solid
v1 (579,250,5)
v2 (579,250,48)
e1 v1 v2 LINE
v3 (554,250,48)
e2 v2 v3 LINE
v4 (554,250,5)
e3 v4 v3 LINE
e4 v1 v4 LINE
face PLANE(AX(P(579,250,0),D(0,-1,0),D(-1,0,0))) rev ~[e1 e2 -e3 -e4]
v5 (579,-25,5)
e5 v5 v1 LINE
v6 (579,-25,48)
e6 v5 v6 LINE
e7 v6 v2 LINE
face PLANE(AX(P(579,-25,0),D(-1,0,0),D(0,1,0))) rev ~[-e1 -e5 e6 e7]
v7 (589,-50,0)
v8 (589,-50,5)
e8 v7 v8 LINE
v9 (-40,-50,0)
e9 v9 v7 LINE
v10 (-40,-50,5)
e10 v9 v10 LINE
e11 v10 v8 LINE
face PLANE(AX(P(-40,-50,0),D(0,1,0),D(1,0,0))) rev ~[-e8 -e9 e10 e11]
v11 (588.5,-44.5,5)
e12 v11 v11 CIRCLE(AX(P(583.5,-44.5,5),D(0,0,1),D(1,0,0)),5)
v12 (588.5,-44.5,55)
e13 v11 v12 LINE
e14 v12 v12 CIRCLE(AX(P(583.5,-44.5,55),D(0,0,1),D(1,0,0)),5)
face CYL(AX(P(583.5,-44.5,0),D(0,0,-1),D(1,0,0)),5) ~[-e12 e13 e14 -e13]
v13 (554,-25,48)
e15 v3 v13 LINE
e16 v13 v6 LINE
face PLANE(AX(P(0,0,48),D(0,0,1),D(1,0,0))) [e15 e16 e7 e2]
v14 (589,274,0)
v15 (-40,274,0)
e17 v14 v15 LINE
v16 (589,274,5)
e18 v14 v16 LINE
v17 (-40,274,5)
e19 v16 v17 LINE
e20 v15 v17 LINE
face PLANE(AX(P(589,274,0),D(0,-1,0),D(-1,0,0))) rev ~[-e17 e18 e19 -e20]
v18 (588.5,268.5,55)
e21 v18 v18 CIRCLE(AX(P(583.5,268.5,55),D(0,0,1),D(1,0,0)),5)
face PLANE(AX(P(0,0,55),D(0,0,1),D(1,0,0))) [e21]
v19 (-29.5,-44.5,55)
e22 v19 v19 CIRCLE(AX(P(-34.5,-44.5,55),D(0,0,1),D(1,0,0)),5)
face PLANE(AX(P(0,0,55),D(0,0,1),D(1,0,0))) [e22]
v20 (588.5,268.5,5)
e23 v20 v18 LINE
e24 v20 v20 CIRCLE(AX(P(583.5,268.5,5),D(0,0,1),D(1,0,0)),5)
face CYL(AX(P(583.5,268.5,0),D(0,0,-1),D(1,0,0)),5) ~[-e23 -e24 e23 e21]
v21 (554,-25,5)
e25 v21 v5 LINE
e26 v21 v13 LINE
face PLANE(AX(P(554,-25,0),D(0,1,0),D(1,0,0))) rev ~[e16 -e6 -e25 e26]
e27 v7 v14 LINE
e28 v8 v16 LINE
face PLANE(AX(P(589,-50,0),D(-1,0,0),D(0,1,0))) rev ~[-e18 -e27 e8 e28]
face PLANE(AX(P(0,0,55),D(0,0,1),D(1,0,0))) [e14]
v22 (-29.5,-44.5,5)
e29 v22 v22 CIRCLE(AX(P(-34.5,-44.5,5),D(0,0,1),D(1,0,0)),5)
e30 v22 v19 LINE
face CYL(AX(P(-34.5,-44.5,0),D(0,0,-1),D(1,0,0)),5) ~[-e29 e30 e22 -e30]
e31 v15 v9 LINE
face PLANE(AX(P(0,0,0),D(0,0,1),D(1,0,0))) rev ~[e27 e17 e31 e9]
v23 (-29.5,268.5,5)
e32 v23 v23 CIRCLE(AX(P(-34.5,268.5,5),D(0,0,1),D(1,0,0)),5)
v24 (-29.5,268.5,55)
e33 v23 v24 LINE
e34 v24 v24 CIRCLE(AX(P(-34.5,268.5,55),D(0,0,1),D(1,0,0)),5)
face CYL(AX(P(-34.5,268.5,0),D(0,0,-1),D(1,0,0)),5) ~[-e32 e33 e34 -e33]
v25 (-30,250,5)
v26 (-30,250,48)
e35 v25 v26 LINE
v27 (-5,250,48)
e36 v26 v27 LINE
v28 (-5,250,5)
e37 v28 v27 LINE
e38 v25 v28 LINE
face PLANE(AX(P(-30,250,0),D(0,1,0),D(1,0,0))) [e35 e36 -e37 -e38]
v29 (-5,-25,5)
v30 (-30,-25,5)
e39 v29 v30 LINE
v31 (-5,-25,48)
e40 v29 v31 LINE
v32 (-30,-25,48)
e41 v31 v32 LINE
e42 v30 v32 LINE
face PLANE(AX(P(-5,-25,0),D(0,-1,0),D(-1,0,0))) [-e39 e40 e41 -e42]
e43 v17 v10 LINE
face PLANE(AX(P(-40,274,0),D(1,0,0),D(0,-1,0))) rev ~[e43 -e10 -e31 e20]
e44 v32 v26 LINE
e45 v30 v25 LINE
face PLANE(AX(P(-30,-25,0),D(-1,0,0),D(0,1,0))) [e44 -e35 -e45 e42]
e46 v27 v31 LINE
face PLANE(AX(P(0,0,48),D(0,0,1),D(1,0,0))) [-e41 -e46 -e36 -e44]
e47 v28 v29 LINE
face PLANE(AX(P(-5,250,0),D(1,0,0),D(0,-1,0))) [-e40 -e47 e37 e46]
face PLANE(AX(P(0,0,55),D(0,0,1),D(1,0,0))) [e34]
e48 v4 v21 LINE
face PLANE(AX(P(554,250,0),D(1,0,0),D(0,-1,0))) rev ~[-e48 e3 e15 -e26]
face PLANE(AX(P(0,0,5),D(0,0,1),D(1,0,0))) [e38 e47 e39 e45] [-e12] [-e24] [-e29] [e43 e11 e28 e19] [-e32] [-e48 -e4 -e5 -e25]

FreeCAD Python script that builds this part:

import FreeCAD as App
import Part
import Sketcher
from FreeCAD import Vector

doc = App.newDocument("Part")
body = doc.addObject("PartDesign::Body", "Body")

sketch1 = body.newObject("Sketcher::SketchObject", "Sketch")
sketch1.AttachmentSupport = (doc.getObject("XY_Plane"), [""])
sketch1.MapMode = "FlatFace"
sketch1.addGeometry([
    Part.LineSegment(Vector(-40, 274, 0), Vector(-40, -50, 0)),
    Part.LineSegment(Vector(-40, -50, 0), Vector(589, -50, 0)),
    Part.LineSegment(Vector(589, -50, 0), Vector(589, 274, 0)),
    Part.LineSegment(Vector(589, 274, 0), Vector(-40, 274, 0)),
    Part.Circle(Vector(-34, -44, 0), Vector(0, 0, 1), 5),
    Part.Circle(Vector(584, -44, 0), Vector(0, 0, 1), 5),
    Part.LineSegment(Vector(-30, -25, 0), Vector(-30, 250, 0)),
    Part.LineSegment(Vector(-30, 250, 0), Vector(-5, 250, 0)),
    Part.LineSegment(Vector(-5, 250, 0), Vector(-5, -25, 0)),
    Part.LineSegment(Vector(-5, -25, 0), Vector(-30, -25, 0)),
    Part.Circle(Vector(-34, 268, 0), Vector(0, 0, 1), 5),
    Part.LineSegment(Vector(554, 250, 0), Vector(579, 250, 0)),
    Part.LineSegment(Vector(579, 250, 0), Vector(579, -25, 0)),
    Part.LineSegment(Vector(579, -25, 0), Vector(554, -25, 0)),
    Part.LineSegment(Vector(554, -25, 0), Vector(554, 250, 0)),
    Part.Circle(Vector(584, 268, 0), Vector(0, 0, 1), 5),
], False)
sketch1.addConstraint([
    Sketcher.Constraint("Coincident", 0, 2, 1, 1),
    Sketcher.Constraint("Coincident", 1, 2, 2, 1),
    Sketcher.Constraint("Coincident", 2, 2, 3, 1),
    Sketcher.Constraint("Coincident", 3, 2, 0, 1),
    Sketcher.Constraint("Coincident", 6, 2, 7, 1),
    Sketcher.Constraint("Coincident", 7, 2, 8, 1),
    Sketcher.Constraint("Coincident", 8, 2, 9, 1),
    Sketcher.Constraint("Coincident", 9, 2, 6, 1),
    Sketcher.Constraint("Coincident", 11, 2, 12, 1),
    Sketcher.Constraint("Coincident", 12, 2, 13, 1),
    Sketcher.Constraint("Coincident", 13, 2, 14, 1),
    Sketcher.Constraint("Coincident", 14, 2, 11, 1),
    Sketcher.Constraint("Vertical", 0),
    Sketcher.Constraint("Horizontal", 1),
    Sketcher.Constraint("Vertical", 2),
    Sketcher.Constraint("Horizontal", 3),
    Sketcher.Constraint("Vertical", 6),
    Sketcher.Constraint("Horizontal", 7),
    Sketcher.Constraint("Vertical", 8),
    Sketcher.Constraint("Horizontal", 9),
    Sketcher.Constraint("Horizontal", 11),
    Sketcher.Constraint("Vertical", 12),
    Sketcher.Constraint("Horizontal", 13),
    Sketcher.Constraint("Vertical", 14),
    Sketcher.Constraint("Equal", 4, 5),
    Sketcher.Constraint("Equal", 5, 10),
    Sketcher.Constraint("Equal", 10, 15),
    Sketcher.Constraint("Horizontal", 4, 3, 5, 3),
    Sketcher.Constraint("Horizontal", 10, 3, 15, 3),
    Sketcher.Constraint("Horizontal", 7, 2, 11, 2),
    Sketcher.Constraint("Horizontal", 9, 2, 12, 2),
    Sketcher.Constraint("Vertical", 4, 3, 10, 3),
    Sketcher.Constraint("Vertical", 5, 3, 15, 3),
    Sketcher.Constraint("Equal", 9, 11),
    Sketcher.Constraint("Diameter", 4, 10.0),
    Sketcher.Constraint("DistanceX", 1, 1, 1, 2, 629.0),
    Sketcher.Constraint("DistanceY", 0, 2, 0, 1, 324.0),
    Sketcher.Constraint("DistanceX", 3, 2, 6, 2, 10.0),
    Sketcher.Constraint("DistanceX", 11, 2, 2, 2, 10.0),
    Sketcher.Constraint("DistanceX", 0, 2, 4, 3, 5.5),
    Sketcher.Constraint("DistanceY", 0, 2, 4, 3, 5.5),
    Sketcher.Constraint("DistanceX", 5, 3, 1, 2, 5.5),
    Sketcher.Constraint("DistanceY", 15, 3, 2, 2, 5.5),
    Sketcher.Constraint("DistanceX", 7, 1, 7, 2, 25.0),
    Sketcher.Constraint("DistanceY", 6, 1, 6, 2, 275.0),
    Sketcher.Constraint("DistanceX", 0, 2, -1, 1, 40.0),
    Sketcher.Constraint("DistanceY", 0, 2, -1, 1, 50.0),
    Sketcher.Constraint("DistanceY", -1, 1, 6, 2, 250.0),
])
pad1 = body.newObject("PartDesign::Pad", "Pad")
pad1.Profile = sketch1
pad1.Length = 5

sketch2 = body.newObject("Sketcher::SketchObject", "Sketch001")
sketch2.AttachmentSupport = (doc.getObject("XY_Plane"), [""])
sketch2.MapMode = "FlatFace"
sketch2.addGeometry([
    Part.LineSegment(Vector(-5, 250, 0), Vector(-30, 250, 0)),
    Part.LineSegment(Vector(-30, 250, 0), Vector(-30, -25, 0)),
    Part.LineSegment(Vector(-30, -25, 0), Vector(-5, -25, 0)),
    Part.LineSegment(Vector(-5, -25, 0), Vector(-5, 250, 0)),
    Part.LineSegment(Vector(579, -25, 0), Vector(579, 250, 0)),
    Part.LineSegment(Vector(579, 250, 0), Vector(554, 250, 0)),
    Part.LineSegment(Vector(554, 250, 0), Vector(554, -25, 0)),
    Part.LineSegment(Vector(554, -25, 0), Vector(579, -25, 0)),
], False)
sketch2.addConstraint([
    Sketcher.Constraint("Coincident", 0, 2, 1, 1),
    Sketcher.Constraint("Coincident", 1, 2, 2, 1),
    Sketcher.Constraint("Coincident", 2, 2, 3, 1),
    Sketcher.Constraint("Coincident", 3, 2, 0, 1),
    Sketcher.Constraint("Coincident", 4, 2, 5, 1),
    Sketcher.Constraint("Coincident", 5, 2, 6, 1),
    Sketcher.Constraint("Coincident", 6, 2, 7, 1),
    Sketcher.Constraint("Coincident", 7, 2, 4, 1),
    Sketcher.Constraint("Horizontal", 0),
    Sketcher.Constraint("Vertical", 1),
    Sketcher.Constraint("Horizontal", 2),
    Sketcher.Constraint("Vertical", 3),
    Sketcher.Constraint("Vertical", 4),
    Sketcher.Constraint("Horizontal", 5),
    Sketcher.Constraint("Vertical", 6),
    Sketcher.Constraint("Horizontal", 7),
    Sketcher.Constraint("Horizontal", 3, 2, 4, 2),
    Sketcher.Constraint("Horizontal", 2, 2, 6, 2),
    Sketcher.Constraint("Equal", 2, 5),
    Sketcher.Constraint("DistanceX", 3, 2, 5, 2, 559.0),
    Sketcher.Constraint("DistanceX", 0, 2, 0, 1, 25.0),
    Sketcher.Constraint("DistanceY", 1, 2, 1, 1, 275.0),
    Sketcher.Constraint("DistanceX", 0, 2, -1, 1, 30.0),
    Sketcher.Constraint("DistanceY", -1, 1, 0, 2, 250.0),
])
pad2 = body.newObject("PartDesign::Pad", "Pad001")
pad2.Profile = sketch2
pad2.Length = 48

sketch3 = body.newObject("Sketcher::SketchObject", "Sketch002")
sketch3.AttachmentSupport = (doc.getObject("XY_Plane"), [""])
sketch3.MapMode = "FlatFace"
sketch3.addGeometry(Part.Circle(Vector(-34, -44, 0), Vector(0, 0, 1), 5), False)
sketch3.addConstraint([
    Sketcher.Constraint("Diameter", 0, 10.0),
    Sketcher.Constraint("DistanceX", 0, 3, -1, 1, 34.5),
    Sketcher.Constraint("DistanceY", 0, 3, -1, 1, 44.5),
])
pad3 = body.newObject("PartDesign::Pad", "Pad002")
pad3.Profile = sketch3
pad3.Length = 55

sketch4 = body.newObject("Sketcher::SketchObject", "Sketch003")
sketch4.AttachmentSupport = (doc.getObject("XY_Plane"), [""])
sketch4.MapMode = "FlatFace"
sketch4.addGeometry(Part.Circle(Vector(-34, 268, 0), Vector(0, 0, 1), 5), False)
sketch4.addConstraint([
    Sketcher.Constraint("Diameter", 0, 10.0),
    Sketcher.Constraint("DistanceX", 0, 3, -1, 1, 34.5),
    Sketcher.Constraint("DistanceY", -1, 1, 0, 3, 268.5),
])
pad4 = body.newObject("PartDesign::Pad", "Pad003")
pad4.Profile = sketch4
pad4.Length = 55

sketch5 = body.newObject("Sketcher::SketchObject", "Sketch004")
sketch5.AttachmentSupport = (doc.getObject("XY_Plane"), [""])
sketch5.MapMode = "FlatFace"
sketch5.addGeometry(Part.Circle(Vector(584, 268, 0), Vector(0, 0, 1), 5), False)
sketch5.addConstraint([
    Sketcher.Constraint("Diameter", 0, 10.0),
    Sketcher.Constraint("DistanceX", -1, 1, 0, 3, 583.5),
    Sketcher.Constraint("DistanceY", -1, 1, 0, 3, 268.5),
])
pad5 = body.newObject("PartDesign::Pad", "Pad004")
pad5.Profile = sketch5
pad5.Length = 55

sketch6 = body.newObject("Sketcher::SketchObject", "Sketch005")
sketch6.AttachmentSupport = (doc.getObject("XY_Plane"), [""])
sketch6.MapMode = "FlatFace"
sketch6.addGeometry(Part.Circle(Vector(584, -44, 0), Vector(0, 0, 1), 5), False)
sketch6.addConstraint([
    Sketcher.Constraint("Diameter", 0, 10.0),
    Sketcher.Constraint("DistanceX", -1, 1, 0, 3, 583.5),
    Sketcher.Constraint("DistanceY", 0, 3, -1, 1, 44.5),
])
pad6 = body.newObject("PartDesign::Pad", "Pad005")
pad6.Profile = sketch6
pad6.Length = 55

doc.recompute()
